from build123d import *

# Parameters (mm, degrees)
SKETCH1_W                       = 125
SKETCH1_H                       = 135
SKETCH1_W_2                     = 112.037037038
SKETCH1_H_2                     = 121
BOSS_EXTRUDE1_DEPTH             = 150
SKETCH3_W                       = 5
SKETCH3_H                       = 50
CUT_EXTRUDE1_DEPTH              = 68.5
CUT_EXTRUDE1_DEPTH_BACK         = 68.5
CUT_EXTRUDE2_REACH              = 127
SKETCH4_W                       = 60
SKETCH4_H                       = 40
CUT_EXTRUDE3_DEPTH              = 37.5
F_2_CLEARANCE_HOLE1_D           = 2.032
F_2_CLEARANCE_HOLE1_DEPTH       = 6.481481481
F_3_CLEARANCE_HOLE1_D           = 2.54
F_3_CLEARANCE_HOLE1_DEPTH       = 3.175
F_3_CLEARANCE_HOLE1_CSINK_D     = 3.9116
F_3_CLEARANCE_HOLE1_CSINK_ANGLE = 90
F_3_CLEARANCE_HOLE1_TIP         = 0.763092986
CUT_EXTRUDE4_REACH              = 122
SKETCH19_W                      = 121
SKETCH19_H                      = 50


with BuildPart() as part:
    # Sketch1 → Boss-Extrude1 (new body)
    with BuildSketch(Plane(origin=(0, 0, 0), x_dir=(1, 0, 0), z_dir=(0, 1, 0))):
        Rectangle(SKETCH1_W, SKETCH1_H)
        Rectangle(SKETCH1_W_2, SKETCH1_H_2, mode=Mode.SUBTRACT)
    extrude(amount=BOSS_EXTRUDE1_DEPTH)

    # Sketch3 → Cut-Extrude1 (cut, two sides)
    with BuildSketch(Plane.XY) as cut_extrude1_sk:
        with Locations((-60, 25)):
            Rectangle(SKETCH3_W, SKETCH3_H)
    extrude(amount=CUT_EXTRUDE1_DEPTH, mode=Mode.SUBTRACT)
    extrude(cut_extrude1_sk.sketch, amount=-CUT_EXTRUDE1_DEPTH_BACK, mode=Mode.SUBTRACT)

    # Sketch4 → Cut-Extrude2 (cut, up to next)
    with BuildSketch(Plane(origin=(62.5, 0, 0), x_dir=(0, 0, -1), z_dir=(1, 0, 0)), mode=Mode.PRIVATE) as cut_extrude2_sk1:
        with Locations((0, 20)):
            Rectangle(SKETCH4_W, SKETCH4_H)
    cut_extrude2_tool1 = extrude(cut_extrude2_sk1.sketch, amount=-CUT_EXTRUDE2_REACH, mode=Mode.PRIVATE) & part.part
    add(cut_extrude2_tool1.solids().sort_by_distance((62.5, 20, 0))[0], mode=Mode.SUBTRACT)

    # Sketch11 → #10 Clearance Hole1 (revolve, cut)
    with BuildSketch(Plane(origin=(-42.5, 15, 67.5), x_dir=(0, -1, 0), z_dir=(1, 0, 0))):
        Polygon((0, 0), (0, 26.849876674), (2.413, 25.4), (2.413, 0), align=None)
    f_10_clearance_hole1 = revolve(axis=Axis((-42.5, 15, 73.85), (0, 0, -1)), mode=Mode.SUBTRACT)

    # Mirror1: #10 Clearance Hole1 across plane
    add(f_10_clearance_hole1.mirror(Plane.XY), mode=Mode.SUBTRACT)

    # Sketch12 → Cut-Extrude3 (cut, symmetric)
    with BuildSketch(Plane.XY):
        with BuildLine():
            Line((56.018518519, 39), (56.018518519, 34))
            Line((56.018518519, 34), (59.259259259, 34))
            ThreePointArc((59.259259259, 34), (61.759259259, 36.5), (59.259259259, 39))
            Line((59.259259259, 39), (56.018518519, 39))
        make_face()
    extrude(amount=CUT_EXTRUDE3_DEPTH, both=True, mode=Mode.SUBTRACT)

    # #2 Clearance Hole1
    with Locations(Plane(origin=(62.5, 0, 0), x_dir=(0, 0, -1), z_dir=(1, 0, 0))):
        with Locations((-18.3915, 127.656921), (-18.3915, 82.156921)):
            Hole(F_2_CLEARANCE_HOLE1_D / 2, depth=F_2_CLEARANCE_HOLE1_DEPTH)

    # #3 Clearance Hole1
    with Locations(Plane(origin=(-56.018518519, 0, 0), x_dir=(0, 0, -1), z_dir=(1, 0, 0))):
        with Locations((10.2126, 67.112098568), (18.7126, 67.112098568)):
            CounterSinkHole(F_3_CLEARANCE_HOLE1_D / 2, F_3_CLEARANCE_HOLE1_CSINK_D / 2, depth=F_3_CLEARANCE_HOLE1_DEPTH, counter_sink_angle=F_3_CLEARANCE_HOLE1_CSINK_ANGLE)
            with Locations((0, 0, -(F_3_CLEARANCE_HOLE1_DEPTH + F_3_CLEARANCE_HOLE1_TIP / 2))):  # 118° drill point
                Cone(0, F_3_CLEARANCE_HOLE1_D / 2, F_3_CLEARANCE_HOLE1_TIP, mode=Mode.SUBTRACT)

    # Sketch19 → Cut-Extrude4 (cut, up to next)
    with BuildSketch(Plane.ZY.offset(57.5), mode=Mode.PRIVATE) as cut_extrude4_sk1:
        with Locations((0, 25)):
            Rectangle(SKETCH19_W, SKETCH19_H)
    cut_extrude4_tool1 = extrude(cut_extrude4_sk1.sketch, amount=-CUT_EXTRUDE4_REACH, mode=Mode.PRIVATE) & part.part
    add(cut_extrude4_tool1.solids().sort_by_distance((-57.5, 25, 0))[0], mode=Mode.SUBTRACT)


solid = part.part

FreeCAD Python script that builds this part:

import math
import FreeCAD as App
import Part
import Sketcher
from FreeCAD import Vector
Q = App.Units.Quantity


def add_polygon(sketch, points):
    """Adds a closed chain of lines whose ends are joined by coincident constraints."""
    first, n = sketch.GeometryCount, len(points)
    for a, b in zip(points, points[1:] + points[:1]):
        sketch.addGeometry(Part.LineSegment(App.Vector(*a, 0), App.Vector(*b, 0)), False)
    for i in range(n):
        sketch.addConstraint(Sketcher.Constraint("Coincident", first + i, 2, first + (i + 1) % n, 1))

doc = App.newDocument("Part")
body = doc.addObject("PartDesign::Body", "Body")

# Sketch on XZ plane
sketch1 = body.newObject("Sketcher::SketchObject", "Sketch")
sketch1.AttachmentSupport = (doc.getObject("XZ_Plane"), [""])
sketch1.MapMode = "FlatFace"
add_polygon(sketch1, [(-62, -68), (-62, 68), (62, 68), (62, -68)])  # lines 0-3
add_polygon(sketch1, [(56, 60), (-56, 60), (-56, -60), (56, -60)])  # lines 4-7
sketch1.addConstraint([
    Sketcher.Constraint("Vertical", 0),
    Sketcher.Constraint("Horizontal", 1),
    Sketcher.Constraint("Vertical", 2),
    Sketcher.Constraint("Horizontal", 3),
    Sketcher.Constraint("Horizontal", 4),
    Sketcher.Constraint("Vertical", 5),
    Sketcher.Constraint("Horizontal", 6),
    Sketcher.Constraint("Vertical", 7),
    Sketcher.Constraint("Symmetric", 0, 2, 2, 2, -1, 1),
    Sketcher.Constraint("Symmetric", 4, 2, 6, 2, -1, 1),
    Sketcher.Constraint("DistanceX", 1, 1, 1, 2, 125.0),
    Sketcher.Constraint("DistanceY", 0, 1, 0, 2, 135.0),
    Sketcher.Constraint("DistanceY", 5, 2, 5, 1, 121.0),
    Sketcher.Constraint("DistanceX", 4, 2, 4, 1, 112.037037),
])
pad1 = body.newObject("PartDesign::Pad", "Pad")
pad1.Profile = sketch1
pad1.Length = 150
pad1.Reversed = True

# Sketch on XY plane
sketch2 = body.newObject("Sketcher::SketchObject", "Sketch001")
sketch2.AttachmentSupport = (doc.getObject("XY_Plane"), [""])
sketch2.MapMode = "FlatFace"
add_polygon(sketch2, [(-62, 50), (-62, 0), (-58, 0), (-58, 50)])  # lines 0-3
sketch2.addConstraint([
    Sketcher.Constraint("Vertical", 0),
    Sketcher.Constraint("Horizontal", 1),
    Sketcher.Constraint("Vertical", 2),
    Sketcher.Constraint("Horizontal", 3),
    Sketcher.Constraint("PointOnObject", 0, 2, -1),
    Sketcher.Constraint("DistanceX", 1, 1, 1, 2, 5.0),
    Sketcher.Constraint("DistanceY", 0, 2, 0, 1, 50.0),
    Sketcher.Constraint("DistanceX", 0, 2, -1, 1, 62.5),
])
pocket1 = body.newObject("PartDesign::Pocket", "Pocket")
pocket1.Profile = sketch2
pocket1.Type = "ThroughAll"
pocket1.Midplane = True

# Sketch on YZ plane
sketch3 = body.newObject("Sketcher::SketchObject", "Sketch002")
sketch3.AttachmentSupport = (doc.getObject("YZ_Plane"), [""])
sketch3.MapMode = "FlatFace"
sketch3.AttachmentOffset = App.Placement(Vector(0, 0, 62.5), App.Rotation())
add_polygon(sketch3, [(40, 30), (0, 30), (0, -30), (40, -30)])  # lines 0-3
sketch3.addConstraint([
    Sketcher.Constraint("Horizontal", 0),
    Sketcher.Constraint("Vertical", 1),
    Sketcher.Constraint("Horizontal", 2),
    Sketcher.Constraint("Vertical", 3),
    Sketcher.Constraint("Symmetric", 0, 2, 1, 2, -1, 1),
    Sketcher.Constraint("DistanceX", 0, 2, 0, 1, 40.0),
    Sketcher.Constraint("DistanceY", 1, 2, 1, 1, 60.0),
])
pocket2 = body.newObject("PartDesign::Pocket", "Pocket001")
pocket2.Profile = sketch3
pocket2.Type = "UpToFirst"

# Sketch on YZ plane
sketch4 = body.newObject("Sketcher::SketchObject", "Sketch003")
sketch4.AttachmentSupport = (doc.getObject("YZ_Plane"), [""])
sketch4.MapMode = "FlatFace"
sketch4.AttachmentOffset = App.Placement(Vector(0, 0, -42.5), App.Rotation())
add_polygon(sketch4, [(15, 40.7), (15, 67.5), (12.6, 67.5), (12.6, 42.1)])  # lines 0-3
sketch4.addGeometry(Part.LineSegment(Vector(15, 67.5, 0), Vector(15, 40.7, 0)), True)  # axis
sketch4.addConstraint([
    Sketcher.Constraint("Vertical", 0),
    Sketcher.Constraint("Horizontal", 1),
    Sketcher.Constraint("Vertical", 2),
    Sketcher.Constraint("Vertical", 4),
    Sketcher.Constraint("Coincident", 4, 1, 0, 2),
    Sketcher.Constraint("Equal", 0, 4),
    Sketcher.Constraint("Angle", 3, Q("-31 deg")),
    Sketcher.Constraint("DistanceY", 2, 2, 2, 1, 25.4),
    Sketcher.Constraint("DistanceX", -1, 1, 0, 2, 15.0),
    Sketcher.Constraint("DistanceY", -1, 1, 0, 2, 67.5),
    Sketcher.Constraint("DistanceX", 1, 2, 1, 1, 2.413),
])
groove = body.newObject("PartDesign::Groove", "Groove")
groove.Profile = sketch4
groove.ReferenceAxis = (sketch4, ["Axis0"])
groove.Angle = 360
doc.recompute()

mirrored = body.newObject("PartDesign::Mirrored", "Mirrored")
mirrored.Originals = [groove]
mirrored.MirrorPlane = (doc.getObject("XY_Plane"), [""])
body.Tip = mirrored

# Sketch on XY plane
sketch5 = body.newObject("Sketcher::SketchObject", "Sketch004")
sketch5.AttachmentSupport = (doc.getObject("XY_Plane"), [""])
sketch5.MapMode = "FlatFace"
sketch5.addGeometry([
    Part.LineSegment(Vector(56, 39, 0), Vector(56, 34, 0)),
    Part.LineSegment(Vector(56, 34, 0), Vector(59.3, 34, 0)),
    Part.ArcOfCircle(Part.Circle(Vector(59.3, 36.5, 0), Vector(0, 0, 1), 2.5), math.radians(-90), math.radians(90)),
    Part.LineSegment(Vector(59.3, 39, 0), Vector(56, 39, 0)),
], False)
sketch5.addConstraint([
    Sketcher.Constraint("Coincident", 0, 2, 1, 1),
    Sketcher.Constraint("Tangent", 1, 2, 2, 1),
    Sketcher.Constraint("Tangent", 2, 2, 3, 1),
    Sketcher.Constraint("Coincident", 3, 2, 0, 1),
    Sketcher.Constraint("Vertical", 0),
    Sketcher.Constraint("Horizontal", 1),
    Sketcher.Constraint("Horizontal", 3),
    Sketcher.Constraint("Radius", 2, 2.5),
    Sketcher.Constraint("DistanceY", -1, 1, 0, 2, 34.0),
    Sketcher.Constraint("DistanceX", 1, 1, 1, 2, 3.240741),
    Sketcher.Constraint("DistanceX", -1, 1, 2, 3, 59.259259),
])
pocket3 = body.newObject("PartDesign::Pocket", "Pocket002")
pocket3.Profile = sketch5
pocket3.Length = 75
pocket3.Midplane = True

# Sketch on YZ plane
sketch6 = body.newObject("Sketcher::SketchObject", "Sketch005")
sketch6.AttachmentSupport = (doc.getObject("YZ_Plane"), [""])
sketch6.MapMode = "FlatFace"
sketch6.AttachmentOffset = App.Placement(Vector(0, 0, 62.5), App.Rotation())
sketch6.addGeometry([
    Part.Circle(Vector(127.7, 18.4, 0), Vector(0, 0, 1), 1),
    Part.Circle(Vector(82.2, 18.4, 0), Vector(0, 0, 1), 1),
], False)
sketch6.addConstraint([
    Sketcher.Constraint("Equal", 0, 1),
    Sketcher.Constraint("Horizontal", 0, 3, 1, 3),
    Sketcher.Constraint("Diameter", 0, 2.032),
    Sketcher.Constraint("DistanceX", 1, 3, 0, 3, 45.5),
    Sketcher.Constraint("DistanceY", -1, 1, 0, 3, 18.3915),
    Sketcher.Constraint("DistanceX", -1, 1, 0, 3, 127.656921),
])
doc.recompute()
hole = body.newObject("PartDesign::Hole", "Hole")
hole.Profile = sketch6
hole.ThreadType = "None"
hole.Diameter = 2.032
hole.DepthType = "Dimension"
hole.Depth = 6.481481
hole.DrillPoint = "Flat"

# Sketch on YZ plane
sketch7 = body.newObject("Sketcher::SketchObject", "Sketch006")
sketch7.AttachmentSupport = (doc.getObject("YZ_Plane"), [""])
sketch7.MapMode = "FlatFace"
sketch7.AttachmentOffset = App.Placement(Vector(0, 0, -56.018519), App.Rotation())
sketch7.addGeometry([
    Part.Circle(Vector(67.1, -10.2, 0), Vector(0, 0, 1), 1.3),
    Part.Circle(Vector(67.1, -18.7, 0), Vector(0, 0, 1), 1.3),
], False)
sketch7.addConstraint([
    Sketcher.Constraint("Equal", 0, 1),
    Sketcher.Constraint("Vertical", 0, 3, 1, 3),
    Sketcher.Constraint("Diameter", 0, 2.54),
    Sketcher.Constraint("DistanceY", 1, 3, 0, 3, 8.5),
    Sketcher.Constraint("DistanceX", -1, 1, 0, 3, 67.112099),
    Sketcher.Constraint("DistanceY", 0, 3, -1, 1, 10.2126),
])
doc.recompute()
hole2 = body.newObject("PartDesign::Hole", "Hole001")
hole2.Profile = sketch7
hole2.ThreadType = "None"
hole2.Diameter = 2.54
hole2.DepthType = "Dimension"
hole2.Depth = 3.175
hole2.DrillPoint = "Angled"
hole2.DrillPointAngle = 118
hole2.HoleCutType = "Countersink"
hole2.HoleCutDiameter = 3.9116
hole2.HoleCutCountersinkAngle = 90

# Sketch on YZ plane
sketch8 = body.newObject("Sketcher::SketchObject", "Sketch007")
sketch8.AttachmentSupport = (doc.getObject("YZ_Plane"), [""])
sketch8.MapMode = "FlatFace"
sketch8.AttachmentOffset = App.Placement(Vector(0, 0, -57.5), App.Rotation())
add_polygon(sketch8, [(50, -60), (0, -60), (0, 60), (50, 60)])  # lines 0-3
sketch8.addConstraint([
    Sketcher.Constraint("Horizontal", 0),
    Sketcher.Constraint("Vertical", 1),
    Sketcher.Constraint("Horizontal", 2),
    Sketcher.Constraint("Vertical", 3),
    Sketcher.Constraint("Symmetric", 0, 2, 1, 2, -1, 1),
    Sketcher.Constraint("DistanceX", 0, 2, 0, 1, 50.0),
    Sketcher.Constraint("DistanceY", 1, 1, 1, 2, 121.0),
])
pocket4 = body.newObject("PartDesign::Pocket", "Pocket003")
pocket4.Profile = sketch8
pocket4.Type = "UpToFirst"
pocket4.Reversed = True

doc.recompute()
